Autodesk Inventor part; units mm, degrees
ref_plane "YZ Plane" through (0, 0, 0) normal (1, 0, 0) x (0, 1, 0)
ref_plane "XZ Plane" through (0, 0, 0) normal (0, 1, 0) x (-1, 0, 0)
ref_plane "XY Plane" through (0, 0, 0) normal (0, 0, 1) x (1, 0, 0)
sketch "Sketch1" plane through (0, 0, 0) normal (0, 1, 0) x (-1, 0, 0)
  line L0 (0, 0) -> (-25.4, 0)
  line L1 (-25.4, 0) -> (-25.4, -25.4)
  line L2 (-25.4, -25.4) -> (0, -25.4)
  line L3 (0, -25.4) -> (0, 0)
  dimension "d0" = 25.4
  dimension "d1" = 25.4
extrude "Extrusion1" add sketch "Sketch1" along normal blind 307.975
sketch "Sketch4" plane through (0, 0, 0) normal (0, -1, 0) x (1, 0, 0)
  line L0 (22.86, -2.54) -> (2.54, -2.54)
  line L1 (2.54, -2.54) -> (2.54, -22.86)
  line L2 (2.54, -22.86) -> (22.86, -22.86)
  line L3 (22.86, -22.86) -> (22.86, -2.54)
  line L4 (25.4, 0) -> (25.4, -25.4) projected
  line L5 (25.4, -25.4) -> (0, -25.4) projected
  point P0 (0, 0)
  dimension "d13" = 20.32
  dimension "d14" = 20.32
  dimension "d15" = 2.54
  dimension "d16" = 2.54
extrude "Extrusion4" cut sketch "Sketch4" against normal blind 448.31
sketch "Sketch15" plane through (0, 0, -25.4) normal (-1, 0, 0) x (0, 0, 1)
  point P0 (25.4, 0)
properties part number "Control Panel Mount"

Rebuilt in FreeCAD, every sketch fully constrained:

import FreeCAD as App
import Part
import Sketcher
from FreeCAD import Vector
Q = App.Units.Quantity

doc = App.newDocument("Part")
body = doc.addObject("PartDesign::Body", "Body")

# Sketch on XZ plane
sketch1 = doc.addObject("Sketcher::SketchObject", "Sketch")
body.addObject(sketch1)
sketch1.AttachmentSupport = (doc.XZ_Plane, [""])
sketch1.MapMode = "FlatFace"
sketch1.addGeometry([
    Part.LineSegment(Vector(0, -25.4, 0), Vector(0, 0, 0)),
    Part.LineSegment(Vector(0, 0, 0), Vector(25.4, 0, 0)),
    Part.LineSegment(Vector(25.4, 0, 0), Vector(25.4, -25.4, 0)),
    Part.LineSegment(Vector(25.4, -25.4, 0), Vector(0, -25.4, 0)),
], False)
sketch1.addConstraint([
    Sketcher.Constraint("Coincident", 0, 2, 1, 1),
    Sketcher.Constraint("Coincident", 1, 2, 2, 1),
    Sketcher.Constraint("Coincident", 2, 2, 3, 1),
    Sketcher.Constraint("Coincident", 3, 2, 0, 1),
    Sketcher.Constraint("Vertical", 0),
    Sketcher.Constraint("Horizontal", 1),
    Sketcher.Constraint("Vertical", 2),
    Sketcher.Constraint("Horizontal", 3),
    Sketcher.Constraint("Coincident", 0, 2, -1, 1),
    Sketcher.Constraint("Equal", 3, 0),
    Sketcher.Constraint("DistanceX", 1, 1, 1, 2, Q("1 in")),
])
pad1 = doc.addObject("PartDesign::Pad", "Pad")
body.addObject(pad1)
pad1.Profile = sketch1
pad1.Length = Q("12.125 in")
pad1.Reversed = True

# Sketch on XZ plane
sketch2 = doc.addObject("Sketcher::SketchObject", "Sketch001")
body.addObject(sketch2)
sketch2.AttachmentSupport = (doc.XZ_Plane, [""])
sketch2.MapMode = "FlatFace"
sketch2.addGeometry([
    Part.LineSegment(Vector(22.86, -22.86, 0), Vector(22.86, -2.54, 0)),
    Part.LineSegment(Vector(22.86, -2.54, 0), Vector(2.54, -2.54, 0)),
    Part.LineSegment(Vector(2.54, -2.54, 0), Vector(2.54, -22.86, 0)),
    Part.LineSegment(Vector(2.54, -22.86, 0), Vector(22.86, -22.86, 0)),
], False)
sketch2.addConstraint([
    Sketcher.Constraint("Coincident", 0, 2, 1, 1),
    Sketcher.Constraint("Coincident", 1, 2, 2, 1),
    Sketcher.Constraint("Coincident", 2, 2, 3, 1),
    Sketcher.Constraint("Coincident", 3, 2, 0, 1),
    Sketcher.Constraint("Vertical", 0),
    Sketcher.Constraint("Horizontal", 1),
    Sketcher.Constraint("Vertical", 2),
    Sketcher.Constraint("Horizontal", 3),
    Sketcher.Constraint("Equal", 3, 0),
    Sketcher.Constraint("DistanceX", 1, 2, 1, 1, Q("0.8 in")),
    Sketcher.Constraint("DistanceY", 0, 2, -1, 1, Q("0.1 in")),
    Sketcher.Constraint("DistanceX", -1, 1, 1, 2, Q("0.1 in")),
])
pocket1 = doc.addObject("PartDesign::Pocket", "Pocket")
body.addObject(pocket1)
pocket1.Profile = sketch2
pocket1.Length = Q("17.65 in")

doc.recompute()
